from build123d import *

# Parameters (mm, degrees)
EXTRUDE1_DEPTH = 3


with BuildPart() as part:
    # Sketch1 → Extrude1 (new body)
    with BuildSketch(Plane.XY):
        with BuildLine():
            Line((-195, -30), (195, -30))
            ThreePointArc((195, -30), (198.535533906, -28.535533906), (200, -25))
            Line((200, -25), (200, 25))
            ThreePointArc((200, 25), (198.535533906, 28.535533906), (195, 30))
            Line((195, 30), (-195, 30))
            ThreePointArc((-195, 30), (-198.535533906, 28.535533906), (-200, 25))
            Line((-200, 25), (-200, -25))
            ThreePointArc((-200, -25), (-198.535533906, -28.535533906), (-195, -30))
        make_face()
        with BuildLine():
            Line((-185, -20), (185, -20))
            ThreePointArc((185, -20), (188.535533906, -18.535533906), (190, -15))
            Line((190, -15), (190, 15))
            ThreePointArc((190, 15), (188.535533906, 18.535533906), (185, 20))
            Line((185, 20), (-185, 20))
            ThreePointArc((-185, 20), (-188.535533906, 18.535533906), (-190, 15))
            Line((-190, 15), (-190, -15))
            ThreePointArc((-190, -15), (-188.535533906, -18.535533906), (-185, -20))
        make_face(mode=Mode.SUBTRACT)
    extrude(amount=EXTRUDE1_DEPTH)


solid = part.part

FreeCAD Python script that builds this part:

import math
import FreeCAD as App
import Part
import Sketcher

V = App.Vector
Q = App.Units.Quantity

doc = App.newDocument("Part")
body = doc.addObject("PartDesign::Body", "Body")

# Sketch on XY plane
sketch1 = doc.addObject("Sketcher::SketchObject", "Sketch")
body.addObject(sketch1)
sketch1.AttachmentSupport = (doc.XY_Plane, [""])
sketch1.MapMode = "FlatFace"
sketch1.addGeometry([
    Part.LineSegment(V(-195, -30, 0), V(195, -30, 0)),  # 0
    Part.ArcOfCircle(Part.Circle(V(195, -25, 0), V(0, 0, 1), 5), math.radians(-90), math.radians(0)),  # 1
    Part.LineSegment(V(200, -25, 0), V(200, 25, 0)),  # 2
    Part.ArcOfCircle(Part.Circle(V(195, 25, 0), V(0, 0, 1), 5), math.radians(0), math.radians(90)),  # 3
    Part.LineSegment(V(195, 30, 0), V(-195, 30, 0)),  # 4
    Part.ArcOfCircle(Part.Circle(V(-195, 25, 0), V(0, 0, 1), 5), math.radians(90), math.radians(180)),  # 5
    Part.LineSegment(V(-200, 25, 0), V(-200, -25, 0)),  # 6
    Part.ArcOfCircle(Part.Circle(V(-195, -25, 0), V(0, 0, 1), 5), math.radians(180), math.radians(270)),  # 7
    Part.LineSegment(V(185, -20, 0), V(-185, -20, 0)),  # 8
    Part.ArcOfCircle(Part.Circle(V(-185, -15, 0), V(0, 0, 1), 5), math.radians(180), math.radians(270)),  # 9
    Part.LineSegment(V(-190, -15, 0), V(-190, 15, 0)),  # 10
    Part.ArcOfCircle(Part.Circle(V(-185, 15, 0), V(0, 0, 1), 5), math.radians(90), math.radians(180)),  # 11
    Part.LineSegment(V(-185, 20, 0), V(185, 20, 0)),  # 12
    Part.ArcOfCircle(Part.Circle(V(185, 15, 0), V(0, 0, 1), 5), math.radians(0), math.radians(90)),  # 13
    Part.LineSegment(V(190, 15, 0), V(190, -15, 0)),  # 14
    Part.ArcOfCircle(Part.Circle(V(185, -15, 0), V(0, 0, 1), 5), math.radians(-90), math.radians(0)),  # 15
], False)
sketch1.addConstraint([
    Sketcher.Constraint("Tangent", 0, 2, 1, 1),
    Sketcher.Constraint("Tangent", 1, 2, 2, 1),
    Sketcher.Constraint("Tangent", 2, 2, 3, 1),
    Sketcher.Constraint("Tangent", 3, 2, 4, 1),
    Sketcher.Constraint("Tangent", 4, 2, 5, 1),
    Sketcher.Constraint("Tangent", 5, 2, 6, 1),
    Sketcher.Constraint("Tangent", 6, 2, 7, 1),
    Sketcher.Constraint("Tangent", 7, 2, 0, 1),
    Sketcher.Constraint("Tangent", 8, 2, 9, 2),
    Sketcher.Constraint("Tangent", 9, 1, 10, 1),
    Sketcher.Constraint("Tangent", 10, 2, 11, 2),
    Sketcher.Constraint("Tangent", 11, 1, 12, 1),
    Sketcher.Constraint("Tangent", 12, 2, 13, 2),
    Sketcher.Constraint("Tangent", 13, 1, 14, 1),
    Sketcher.Constraint("Tangent", 14, 2, 15, 2),
    Sketcher.Constraint("Tangent", 15, 1, 8, 1),
    Sketcher.Constraint("Horizontal", 0),
    Sketcher.Constraint("Vertical", 2),
    Sketcher.Constraint("Horizontal", 4),
    Sketcher.Constraint("Vertical", 6),
    Sketcher.Constraint("Horizontal", 8),
    Sketcher.Constraint("Vertical", 10),
    Sketcher.Constraint("Horizontal", 12),
    Sketcher.Constraint("Vertical", 14),
    Sketcher.Constraint("Equal", 1, 3),
    Sketcher.Constraint("Equal", 3, 5),
    Sketcher.Constraint("Equal", 5, 7),
    Sketcher.Constraint("Equal", 7, 9),
    Sketcher.Constraint("Equal", 9, 11),
    Sketcher.Constraint("Equal", 11, 13),
    Sketcher.Constraint("Equal", 13, 15),
    Sketcher.Constraint("Symmetric", 1, 3, 5, 3, -1, 1),
    Sketcher.Constraint("Symmetric", 9, 3, 13, 3, -1, 1),
    Sketcher.Constraint("Radius", 1, Q("5 mm")),
    Sketcher.Constraint("DistanceX", 0, 1, 0, 2, Q("390 mm")),
    Sketcher.Constraint("DistanceX", 8, 2, 8, 1, Q("370 mm")),
    Sketcher.Constraint("DistanceY", 2, 1, 2, 2, Q("50 mm")),
    Sketcher.Constraint("DistanceY", 10, 1, 10, 2, Q("30 mm")),
])
pad1 = doc.addObject("PartDesign::Pad", "Pad")
body.addObject(pad1)
pad1.Profile = sketch1
pad1.Length = 3

doc.recompute()
